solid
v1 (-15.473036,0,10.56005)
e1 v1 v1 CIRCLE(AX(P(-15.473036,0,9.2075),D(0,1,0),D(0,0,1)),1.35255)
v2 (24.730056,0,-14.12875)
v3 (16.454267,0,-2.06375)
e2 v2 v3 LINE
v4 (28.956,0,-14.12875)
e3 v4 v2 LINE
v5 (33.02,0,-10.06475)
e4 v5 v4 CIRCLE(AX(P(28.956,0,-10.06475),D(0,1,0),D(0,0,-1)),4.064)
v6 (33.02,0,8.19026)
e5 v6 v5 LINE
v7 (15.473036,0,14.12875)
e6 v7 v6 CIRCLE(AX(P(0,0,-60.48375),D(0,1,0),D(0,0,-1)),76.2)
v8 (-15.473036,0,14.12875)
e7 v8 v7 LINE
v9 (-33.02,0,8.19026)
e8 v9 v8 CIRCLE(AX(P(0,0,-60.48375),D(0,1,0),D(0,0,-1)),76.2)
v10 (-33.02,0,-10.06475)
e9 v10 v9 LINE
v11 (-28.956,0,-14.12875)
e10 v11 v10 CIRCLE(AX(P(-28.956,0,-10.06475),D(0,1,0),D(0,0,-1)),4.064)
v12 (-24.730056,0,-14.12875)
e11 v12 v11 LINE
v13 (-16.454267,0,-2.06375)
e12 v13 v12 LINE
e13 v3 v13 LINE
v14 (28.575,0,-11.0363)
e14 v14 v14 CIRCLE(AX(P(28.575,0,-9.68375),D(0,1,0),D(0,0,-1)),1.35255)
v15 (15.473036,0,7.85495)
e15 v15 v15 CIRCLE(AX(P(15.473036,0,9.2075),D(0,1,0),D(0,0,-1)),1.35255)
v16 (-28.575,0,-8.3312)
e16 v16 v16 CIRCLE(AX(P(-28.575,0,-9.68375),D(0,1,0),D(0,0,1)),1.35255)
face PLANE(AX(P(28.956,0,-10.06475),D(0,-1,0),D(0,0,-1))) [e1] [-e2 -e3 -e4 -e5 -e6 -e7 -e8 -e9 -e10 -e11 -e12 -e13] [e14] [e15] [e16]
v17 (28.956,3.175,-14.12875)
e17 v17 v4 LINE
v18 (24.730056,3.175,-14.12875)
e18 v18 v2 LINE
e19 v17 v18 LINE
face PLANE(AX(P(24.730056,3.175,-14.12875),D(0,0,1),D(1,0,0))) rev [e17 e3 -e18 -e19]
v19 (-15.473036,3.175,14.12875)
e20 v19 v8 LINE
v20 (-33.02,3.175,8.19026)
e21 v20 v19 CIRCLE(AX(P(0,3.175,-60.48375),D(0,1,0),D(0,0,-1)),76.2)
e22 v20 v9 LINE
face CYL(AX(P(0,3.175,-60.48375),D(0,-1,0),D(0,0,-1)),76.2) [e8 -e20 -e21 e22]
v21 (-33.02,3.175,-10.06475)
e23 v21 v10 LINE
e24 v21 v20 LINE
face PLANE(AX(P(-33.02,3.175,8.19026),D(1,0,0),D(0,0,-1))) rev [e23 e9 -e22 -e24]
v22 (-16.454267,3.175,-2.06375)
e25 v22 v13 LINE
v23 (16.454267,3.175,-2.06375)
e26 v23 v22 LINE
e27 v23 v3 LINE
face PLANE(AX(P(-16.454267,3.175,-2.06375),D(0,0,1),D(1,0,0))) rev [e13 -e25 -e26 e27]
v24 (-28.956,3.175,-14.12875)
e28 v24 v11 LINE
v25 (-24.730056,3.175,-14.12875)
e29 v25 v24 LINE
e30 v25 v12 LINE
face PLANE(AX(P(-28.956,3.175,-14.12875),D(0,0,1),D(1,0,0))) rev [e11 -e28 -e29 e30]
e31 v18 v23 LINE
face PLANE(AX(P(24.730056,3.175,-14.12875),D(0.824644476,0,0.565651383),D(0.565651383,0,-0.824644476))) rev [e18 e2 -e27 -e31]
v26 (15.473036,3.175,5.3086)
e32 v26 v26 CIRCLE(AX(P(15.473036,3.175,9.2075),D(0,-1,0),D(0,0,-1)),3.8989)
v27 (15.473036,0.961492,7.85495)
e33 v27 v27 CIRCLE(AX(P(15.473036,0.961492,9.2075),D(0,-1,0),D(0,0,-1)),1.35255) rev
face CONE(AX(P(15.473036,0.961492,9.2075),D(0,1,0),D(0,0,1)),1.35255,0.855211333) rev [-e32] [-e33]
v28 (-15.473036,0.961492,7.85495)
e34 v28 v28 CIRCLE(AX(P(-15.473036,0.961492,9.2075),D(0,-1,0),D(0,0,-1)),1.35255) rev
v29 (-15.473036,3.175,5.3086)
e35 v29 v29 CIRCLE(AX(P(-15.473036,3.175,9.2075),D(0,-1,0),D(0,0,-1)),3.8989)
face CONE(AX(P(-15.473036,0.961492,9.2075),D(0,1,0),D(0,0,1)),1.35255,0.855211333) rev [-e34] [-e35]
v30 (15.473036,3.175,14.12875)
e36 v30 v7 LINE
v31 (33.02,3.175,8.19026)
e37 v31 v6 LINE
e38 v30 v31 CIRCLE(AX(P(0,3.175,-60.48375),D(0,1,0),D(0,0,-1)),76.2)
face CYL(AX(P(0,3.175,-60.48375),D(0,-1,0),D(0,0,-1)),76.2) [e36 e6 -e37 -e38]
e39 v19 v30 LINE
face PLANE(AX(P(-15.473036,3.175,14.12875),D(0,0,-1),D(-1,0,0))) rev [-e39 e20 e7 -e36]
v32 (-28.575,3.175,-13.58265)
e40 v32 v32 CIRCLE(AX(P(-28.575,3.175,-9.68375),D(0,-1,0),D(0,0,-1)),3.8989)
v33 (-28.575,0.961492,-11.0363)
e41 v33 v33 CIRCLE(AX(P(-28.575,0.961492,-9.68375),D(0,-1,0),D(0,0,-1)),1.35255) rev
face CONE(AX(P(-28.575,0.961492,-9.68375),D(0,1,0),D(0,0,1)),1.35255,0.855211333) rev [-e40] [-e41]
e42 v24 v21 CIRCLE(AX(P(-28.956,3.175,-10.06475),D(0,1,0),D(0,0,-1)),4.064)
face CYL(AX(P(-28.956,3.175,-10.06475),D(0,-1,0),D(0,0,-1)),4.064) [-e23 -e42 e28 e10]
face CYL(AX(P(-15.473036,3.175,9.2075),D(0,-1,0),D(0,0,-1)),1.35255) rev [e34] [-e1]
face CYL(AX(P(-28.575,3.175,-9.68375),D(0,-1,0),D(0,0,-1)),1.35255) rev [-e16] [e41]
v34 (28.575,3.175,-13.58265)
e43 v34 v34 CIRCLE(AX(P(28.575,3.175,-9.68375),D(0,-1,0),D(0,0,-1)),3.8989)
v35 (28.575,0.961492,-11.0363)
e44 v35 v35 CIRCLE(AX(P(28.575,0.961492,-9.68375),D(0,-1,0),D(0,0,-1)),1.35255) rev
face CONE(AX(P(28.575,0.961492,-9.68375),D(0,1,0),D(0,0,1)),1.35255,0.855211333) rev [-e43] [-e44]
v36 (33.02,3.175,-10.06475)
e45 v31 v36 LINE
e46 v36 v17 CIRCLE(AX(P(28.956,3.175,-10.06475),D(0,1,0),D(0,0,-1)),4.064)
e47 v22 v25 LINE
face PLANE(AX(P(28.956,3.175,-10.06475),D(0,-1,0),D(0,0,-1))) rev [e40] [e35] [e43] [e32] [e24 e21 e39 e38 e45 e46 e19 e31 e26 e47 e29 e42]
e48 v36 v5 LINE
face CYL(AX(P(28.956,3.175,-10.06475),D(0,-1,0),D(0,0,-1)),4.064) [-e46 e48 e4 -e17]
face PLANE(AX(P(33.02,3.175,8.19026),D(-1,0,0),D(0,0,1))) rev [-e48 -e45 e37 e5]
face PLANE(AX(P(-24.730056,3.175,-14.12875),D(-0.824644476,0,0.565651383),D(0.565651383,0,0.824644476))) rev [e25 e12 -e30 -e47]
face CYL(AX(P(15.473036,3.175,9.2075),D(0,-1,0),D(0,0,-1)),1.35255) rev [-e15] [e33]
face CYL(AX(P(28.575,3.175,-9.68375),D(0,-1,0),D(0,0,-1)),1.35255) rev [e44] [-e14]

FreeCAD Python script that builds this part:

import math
import FreeCAD as App
import Part
import Sketcher
Q = App.Units.Quantity


def edges_at(feature, points):
    """Names of the edges that pass closest to the given points."""
    edges = feature.Shape.Edges
    near = lambda p: min(range(len(edges)), key=lambda i: edges[i].distToShape(Part.Vertex(*p))[0])
    return sorted({f"Edge{near(p) + 1}" for p in points})

doc = App.newDocument("Part")
params = doc.addObject("Spreadsheet::Sheet", "Params")
for row, (alias, value) in enumerate([
    ("sketch1_radius", "3 in"),
    ("sketch1_radius2", "0.16 in"),
    ("pad1_length", "0.125 in"),
    ("chamfer_size", "2.54635 mm"),
    ("chamfer_size2", "2.213508 mm"),
], start=1):
    params.set(f"A{row}", alias)
    params.set(f"B{row}", "=" + value)
    params.setAlias(f"B{row}", alias)

body = doc.addObject("PartDesign::Body", "Body")

# Sketch on XZ plane
sketch1 = doc.addObject("Sketcher::SketchObject", "Sketch")
body.addObject(sketch1)
sketch1.AttachmentSupport = (doc.XZ_Plane, [""])
sketch1.MapMode = "FlatFace"
sketch1.addGeometry([
    Part.LineSegment(App.Vector(-16.5, -2.1, 0), App.Vector(-24.7, -14.1, 0)),  # 0
    Part.LineSegment(App.Vector(-24.7, -14.1, 0), App.Vector(-29, -14.1, 0)),  # 1
    Part.ArcOfCircle(Part.Circle(App.Vector(-29, -10.1, 0), App.Vector(0, 0, 1), 4.1), math.radians(180), math.radians(270)),  # 2
    Part.LineSegment(App.Vector(-33, -10.1, 0), App.Vector(-33, 8.2, 0)),  # 3
    Part.ArcOfCircle(Part.Circle(App.Vector(0, -60.5, 0), App.Vector(0, 0, 1), 76.2), math.radians(101.72), math.radians(115.68)),  # 4
    Part.LineSegment(App.Vector(-15.5, 14.1, 0), App.Vector(15.5, 14.1, 0)),  # 5
    Part.ArcOfCircle(Part.Circle(App.Vector(0, -60.5, 0), App.Vector(0, 0, 1), 76.2), math.radians(64.32), math.radians(78.28)),  # 6
    Part.LineSegment(App.Vector(33, 8.2, 0), App.Vector(33, -10.1, 0)),  # 7
    Part.ArcOfCircle(Part.Circle(App.Vector(29, -10.1, 0), App.Vector(0, 0, 1), 4.1), math.radians(-90), math.radians(0)),  # 8
    Part.LineSegment(App.Vector(29, -14.1, 0), App.Vector(24.7, -14.1, 0)),  # 9
    Part.LineSegment(App.Vector(24.7, -14.1, 0), App.Vector(16.5, -2.1, 0)),  # 10
    Part.LineSegment(App.Vector(16.5, -2.1, 0), App.Vector(-16.5, -2.1, 0)),  # 11
    Part.Circle(App.Vector(15.5, 9.2, 0), App.Vector(0, 0, 1), 1.4),  # 12
    Part.Circle(App.Vector(-15.5, 9.2, 0), App.Vector(0, 0, 1), 1.4),  # 13
    Part.Circle(App.Vector(28.6, -9.7, 0), App.Vector(0, 0, 1), 1.4),  # 14
    Part.Circle(App.Vector(-28.6, -9.7, 0), App.Vector(0, 0, 1), 1.4),  # 15
], False)
sketch1.addConstraint([
    Sketcher.Constraint("Coincident", 0, 2, 1, 1),
    Sketcher.Constraint("Tangent", 1, 2, 2, 2),
    Sketcher.Constraint("Tangent", 2, 1, 3, 1),
    Sketcher.Constraint("Coincident", 3, 2, 4, 2),
    Sketcher.Constraint("Coincident", 4, 1, 5, 1),
    Sketcher.Constraint("Coincident", 5, 2, 6, 2),
    Sketcher.Constraint("Coincident", 6, 1, 7, 1),
    Sketcher.Constraint("Tangent", 7, 2, 8, 2),
    Sketcher.Constraint("Tangent", 8, 1, 9, 1),
    Sketcher.Constraint("Coincident", 9, 2, 10, 1),
    Sketcher.Constraint("Coincident", 10, 2, 11, 1),
    Sketcher.Constraint("Coincident", 11, 2, 0, 1),
    Sketcher.Constraint("Horizontal", 1),
    Sketcher.Constraint("Vertical", 3),
    Sketcher.Constraint("Horizontal", 5),
    Sketcher.Constraint("Vertical", 7),
    Sketcher.Constraint("Horizontal", 9),
    Sketcher.Constraint("Horizontal", 11),
    Sketcher.Constraint("Coincident", 6, 3, 4, 3),
    Sketcher.Constraint("Equal", 4, 6),
    Sketcher.Constraint("Equal", 2, 8),
    Sketcher.Constraint("Equal", 12, 13),
    Sketcher.Constraint("Equal", 13, 14),
    Sketcher.Constraint("Equal", 14, 15),
    Sketcher.Constraint("Symmetric", 2, 3, 8, 3, -2),
    Sketcher.Constraint("Symmetric", 12, 3, 13, 3, -2),
    Sketcher.Constraint("Symmetric", 14, 3, 15, 3, -2),
    Sketcher.Constraint("PointOnObject", 4, 3, -2),
    Sketcher.Constraint("Vertical", 13, 3, 4, 1),
    Sketcher.Constraint("Equal", 1, 9),
    Sketcher.Constraint("Equal", 0, 10),
    Sketcher.Constraint("Radius", 4, Q("3 in")),
    Sketcher.Constraint("Radius", 2, Q("0.16 in")),
    Sketcher.Constraint("DistanceY", 4, 3, 14, 3, Q("2 in")),
    Sketcher.Constraint("Diameter", 12, Q("0.1065 in")),
    Sketcher.Constraint("DistanceX", 2, 1, -1, 1, Q("1.3 in")),
    Sketcher.Constraint("DistanceY", 14, 3, 10, 2, Q("0.3 in")),
    Sketcher.Constraint("DistanceX", 15, 3, 14, 3, Q("2.25 in")),
    Sketcher.Constraint("DistanceY", 4, 3, 2, 3, Q("1.985 in")),
    Sketcher.Constraint("DistanceY", 15, 3, 4, 1, Q("0.9375 in")),
    Sketcher.Constraint("DistanceY", -1, 1, 12, 3, Q("0.3625 in")),
    Sketcher.Constraint("DistanceX", 1, 2, 1, 1, Q("4.225944 mm")),
    Sketcher.Constraint("DistanceX", 11, 2, 11, 1, Q("32.908533 mm")),
    Sketcher.Constraint("DistanceY", 2, 3, -1, 1, Q("10.06475 mm")),
])
sketch1.setExpression("Constraints[31]", "Params.sketch1_radius")
sketch1.setExpression("Constraints[32]", "Params.sketch1_radius2")
pad1 = doc.addObject("PartDesign::Pad", "Pad")
body.addObject(pad1)
pad1.Profile = sketch1
pad1.setExpression("Length", "Params.pad1_length")
pad1.Reversed = True
doc.recompute()

chamfer = doc.addObject("PartDesign::Chamfer", "Chamfer")
body.addObject(chamfer)
chamfer.Base = (pad1, edges_at(pad1, [
    (-16.826, 3.175, 9.207),
    (-29.928, 3.175, -9.684),
    (14.12, 3.175, 9.207),
    (27.222, 3.175, -9.684),
]))
chamfer.ChamferType = "Two distances"
chamfer.setExpression("Size", "Params.chamfer_size")
chamfer.setExpression("Size2", "Params.chamfer_size2")
chamfer.FlipDirection = True

doc.recompute()
